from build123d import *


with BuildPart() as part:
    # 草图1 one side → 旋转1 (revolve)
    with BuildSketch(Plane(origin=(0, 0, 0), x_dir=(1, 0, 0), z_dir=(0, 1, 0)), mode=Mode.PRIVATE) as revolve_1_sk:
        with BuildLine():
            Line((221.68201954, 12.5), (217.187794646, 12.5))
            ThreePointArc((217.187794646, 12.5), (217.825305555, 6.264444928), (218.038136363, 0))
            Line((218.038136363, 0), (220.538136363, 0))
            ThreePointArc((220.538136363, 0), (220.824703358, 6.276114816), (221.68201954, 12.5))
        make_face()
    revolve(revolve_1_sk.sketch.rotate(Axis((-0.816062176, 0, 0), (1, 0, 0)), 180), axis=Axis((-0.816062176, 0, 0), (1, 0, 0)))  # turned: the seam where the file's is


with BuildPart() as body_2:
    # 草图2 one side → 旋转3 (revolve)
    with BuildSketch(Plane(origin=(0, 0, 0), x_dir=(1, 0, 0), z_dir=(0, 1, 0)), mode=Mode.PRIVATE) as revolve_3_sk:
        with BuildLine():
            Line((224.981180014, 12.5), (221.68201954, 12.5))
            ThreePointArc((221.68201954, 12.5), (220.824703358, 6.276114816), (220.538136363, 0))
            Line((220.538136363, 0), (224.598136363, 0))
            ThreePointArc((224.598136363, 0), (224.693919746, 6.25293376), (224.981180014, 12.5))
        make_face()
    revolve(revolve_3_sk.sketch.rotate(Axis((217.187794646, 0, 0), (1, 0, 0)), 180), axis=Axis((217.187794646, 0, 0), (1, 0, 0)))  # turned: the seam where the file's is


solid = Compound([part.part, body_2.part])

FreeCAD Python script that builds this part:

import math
import FreeCAD as App
import Part
import Sketcher
Q = App.Units.Quantity

doc = App.newDocument("Part")
body = doc.addObject("PartDesign::Body", "Body")

# Sketch on XZ plane
sketch1 = body.newObject("Sketcher::SketchObject", "Sketch")
sketch1.AttachmentSupport = (doc.getObject("XZ_Plane"), [""])
sketch1.MapMode = "FlatFace"
sketch1.addGeometry(Part.LineSegment(App.Vector(221.7, -12.5, 0), App.Vector(217.2, -12.5, 0)), False)
sketch1.addGeometry(Part.ArcOfCircle(Part.Circle(App.Vector(125.7, 0, 0), App.Vector(0, 0, 1), 92.3), math.radians(-7.78), math.radians(0)), False)
sketch1.addGeometry(Part.LineSegment(App.Vector(218, 0, 0), App.Vector(220.5, 0, 0)), False)
sketch1.addGeometry(Part.ArcOfCircle(Part.Circle(App.Vector(289.4, 0, 0), App.Vector(0, 0, 1), 68.9), math.radians(-180), math.radians(-169.54)), False)
sketch1.addConstraint(Sketcher.Constraint("Coincident", 0, 2, 1, 1))
sketch1.addConstraint(Sketcher.Constraint("Coincident", 1, 2, 2, 1))
sketch1.addConstraint(Sketcher.Constraint("Coincident", 2, 2, 3, 1))
sketch1.addConstraint(Sketcher.Constraint("Coincident", 3, 2, 0, 1))
sketch1.addConstraint(Sketcher.Constraint("Horizontal", 0))
sketch1.addConstraint(Sketcher.Constraint("Horizontal", 2))
sketch1.addConstraint(Sketcher.Constraint("PointOnObject", 1, 3, -1))
sketch1.addConstraint(Sketcher.Constraint("PointOnObject", 3, 3, -1))
sketch1.addConstraint(Sketcher.Constraint("PointOnObject", 1, 2, -1))
sketch1.addConstraint(Sketcher.Constraint("Radius", 1, Q("92.3 mm")))
sketch1.addConstraint(Sketcher.Constraint("Radius", 3, Q("68.87 mm")))
sketch1.addConstraint(Sketcher.Constraint("DistanceX", 2, 1, 2, 2, Q("2.5 mm")))
sketch1.addConstraint(Sketcher.Constraint("DistanceY", 0, 2, -1, 1, Q("12.5 mm")))
sketch1.addConstraint(Sketcher.Constraint("DistanceX", -1, 1, 3, 2, Q("221.68202 mm")))
revolution = body.newObject("PartDesign::Revolution", "Revolution")
revolution.Profile = sketch1
revolution.ReferenceAxis = (sketch1, ["H_Axis"])
revolution.Angle = 360
body2 = doc.addObject("PartDesign::Body", "Body001")

# Sketch on XZ plane
sketch2 = body2.newObject("Sketcher::SketchObject", "Sketch001")
sketch2.AttachmentSupport = (doc.getObject("XZ_Plane001"), [""])
sketch2.MapMode = "FlatFace"
sketch2.addGeometry(Part.LineSegment(App.Vector(225, -12.5, 0), App.Vector(221.7, -12.5, 0)), False)
sketch2.addGeometry(Part.ArcOfCircle(Part.Circle(App.Vector(289.4, 0, 0), App.Vector(0, 0, 1), 68.9), math.radians(-180), math.radians(-169.54)), False)
sketch2.addGeometry(Part.LineSegment(App.Vector(220.5, 0, 0), App.Vector(224.6, 0, 0)), False)
sketch2.addGeometry(Part.ArcOfCircle(Part.Circle(App.Vector(428.7, 0, 0), App.Vector(0, 0, 1), 204.2), math.radians(-180), math.radians(-176.49)), False)
sketch2.addConstraint(Sketcher.Constraint("Coincident", 0, 2, 1, 2))
sketch2.addConstraint(Sketcher.Constraint("Coincident", 1, 1, 2, 1))
sketch2.addConstraint(Sketcher.Constraint("Coincident", 2, 2, 3, 1))
sketch2.addConstraint(Sketcher.Constraint("Coincident", 3, 2, 0, 1))
sketch2.addConstraint(Sketcher.Constraint("Horizontal", 0))
sketch2.addConstraint(Sketcher.Constraint("Horizontal", 2))
sketch2.addConstraint(Sketcher.Constraint("PointOnObject", 1, 3, -1))
sketch2.addConstraint(Sketcher.Constraint("PointOnObject", 3, 3, -1))
sketch2.addConstraint(Sketcher.Constraint("PointOnObject", 1, 1, -1))
sketch2.addConstraint(Sketcher.Constraint("Radius", 1, Q("68.87 mm")))
sketch2.addConstraint(Sketcher.Constraint("Radius", 3, Q("204.15 mm")))
sketch2.addConstraint(Sketcher.Constraint("DistanceX", 2, 1, 2, 2, Q("4.06 mm")))
sketch2.addConstraint(Sketcher.Constraint("DistanceY", 0, 2, -1, 1, Q("12.5 mm")))
sketch2.addConstraint(Sketcher.Constraint("DistanceX", -1, 1, 0, 2, Q("221.68202 mm")))
revolution2 = body2.newObject("PartDesign::Revolution", "Revolution001")
revolution2.Profile = sketch2
revolution2.ReferenceAxis = (sketch2, ["H_Axis"])
revolution2.Angle = 360

doc.recompute()
